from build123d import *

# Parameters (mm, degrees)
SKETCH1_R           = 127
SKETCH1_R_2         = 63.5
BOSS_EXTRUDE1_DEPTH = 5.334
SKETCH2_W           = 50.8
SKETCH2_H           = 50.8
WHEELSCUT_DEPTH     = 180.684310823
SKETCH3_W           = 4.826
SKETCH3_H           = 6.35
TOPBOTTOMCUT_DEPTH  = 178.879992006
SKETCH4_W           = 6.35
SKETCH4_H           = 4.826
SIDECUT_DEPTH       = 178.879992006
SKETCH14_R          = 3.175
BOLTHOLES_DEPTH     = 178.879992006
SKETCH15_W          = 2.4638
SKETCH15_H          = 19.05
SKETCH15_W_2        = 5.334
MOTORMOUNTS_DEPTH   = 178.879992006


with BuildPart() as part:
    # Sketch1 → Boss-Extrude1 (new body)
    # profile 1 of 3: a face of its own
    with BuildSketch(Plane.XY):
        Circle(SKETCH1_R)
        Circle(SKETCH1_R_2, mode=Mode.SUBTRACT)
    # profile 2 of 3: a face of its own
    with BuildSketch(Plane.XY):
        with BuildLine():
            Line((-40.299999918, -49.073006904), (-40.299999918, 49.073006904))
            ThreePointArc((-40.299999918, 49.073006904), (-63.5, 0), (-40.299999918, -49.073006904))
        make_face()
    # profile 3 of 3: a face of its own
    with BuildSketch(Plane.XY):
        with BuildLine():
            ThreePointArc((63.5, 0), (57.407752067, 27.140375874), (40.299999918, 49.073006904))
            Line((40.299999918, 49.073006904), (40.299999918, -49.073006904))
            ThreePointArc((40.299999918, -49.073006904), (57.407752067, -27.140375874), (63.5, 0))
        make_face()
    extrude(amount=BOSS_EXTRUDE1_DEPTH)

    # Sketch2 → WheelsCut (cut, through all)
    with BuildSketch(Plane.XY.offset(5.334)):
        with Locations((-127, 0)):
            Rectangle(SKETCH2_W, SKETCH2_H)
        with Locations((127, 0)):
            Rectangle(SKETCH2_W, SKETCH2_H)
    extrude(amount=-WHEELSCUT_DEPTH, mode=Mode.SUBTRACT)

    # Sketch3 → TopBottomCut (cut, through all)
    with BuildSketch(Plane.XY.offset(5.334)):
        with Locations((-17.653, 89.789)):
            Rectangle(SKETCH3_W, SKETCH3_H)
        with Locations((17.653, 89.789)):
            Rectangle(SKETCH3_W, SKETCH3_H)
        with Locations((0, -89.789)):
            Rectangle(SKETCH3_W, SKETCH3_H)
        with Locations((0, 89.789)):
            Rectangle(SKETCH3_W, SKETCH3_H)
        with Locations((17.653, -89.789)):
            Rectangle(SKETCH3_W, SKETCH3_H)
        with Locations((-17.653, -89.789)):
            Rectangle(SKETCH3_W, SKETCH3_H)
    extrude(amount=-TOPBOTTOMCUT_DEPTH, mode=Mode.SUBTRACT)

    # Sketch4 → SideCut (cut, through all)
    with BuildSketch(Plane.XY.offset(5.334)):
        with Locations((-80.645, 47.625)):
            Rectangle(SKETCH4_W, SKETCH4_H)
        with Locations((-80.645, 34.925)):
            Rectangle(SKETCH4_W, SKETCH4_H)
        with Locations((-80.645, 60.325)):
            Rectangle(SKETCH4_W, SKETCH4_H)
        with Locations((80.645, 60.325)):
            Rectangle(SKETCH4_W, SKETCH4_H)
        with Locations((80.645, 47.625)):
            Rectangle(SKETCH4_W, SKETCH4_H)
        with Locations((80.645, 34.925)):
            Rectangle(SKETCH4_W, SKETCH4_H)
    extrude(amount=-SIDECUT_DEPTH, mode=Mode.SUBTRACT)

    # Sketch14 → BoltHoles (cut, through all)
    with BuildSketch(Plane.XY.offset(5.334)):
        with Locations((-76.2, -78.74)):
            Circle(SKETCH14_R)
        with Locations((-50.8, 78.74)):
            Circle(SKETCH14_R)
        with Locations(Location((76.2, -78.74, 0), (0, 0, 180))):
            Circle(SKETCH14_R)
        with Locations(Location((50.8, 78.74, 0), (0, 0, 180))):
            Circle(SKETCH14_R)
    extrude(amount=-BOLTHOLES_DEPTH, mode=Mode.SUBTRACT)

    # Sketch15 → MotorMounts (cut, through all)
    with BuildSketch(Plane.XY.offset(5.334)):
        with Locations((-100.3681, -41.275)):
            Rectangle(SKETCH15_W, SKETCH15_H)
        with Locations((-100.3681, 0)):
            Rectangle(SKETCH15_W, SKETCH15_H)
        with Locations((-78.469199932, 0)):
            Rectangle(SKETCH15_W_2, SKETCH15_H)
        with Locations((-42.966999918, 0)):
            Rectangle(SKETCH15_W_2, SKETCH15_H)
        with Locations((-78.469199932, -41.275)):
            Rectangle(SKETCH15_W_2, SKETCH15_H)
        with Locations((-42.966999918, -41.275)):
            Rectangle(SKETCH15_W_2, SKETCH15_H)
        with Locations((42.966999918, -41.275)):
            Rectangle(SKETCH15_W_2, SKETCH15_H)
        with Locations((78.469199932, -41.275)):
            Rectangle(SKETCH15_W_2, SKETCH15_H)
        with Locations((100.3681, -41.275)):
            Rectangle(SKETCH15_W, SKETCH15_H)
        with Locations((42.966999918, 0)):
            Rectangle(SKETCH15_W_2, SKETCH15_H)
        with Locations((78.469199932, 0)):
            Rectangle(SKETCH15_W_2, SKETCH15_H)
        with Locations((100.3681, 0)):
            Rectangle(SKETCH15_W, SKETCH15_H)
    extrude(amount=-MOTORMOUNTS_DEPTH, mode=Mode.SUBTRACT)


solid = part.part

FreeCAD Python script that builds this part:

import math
import FreeCAD as App
import Part
import Sketcher

V = App.Vector
Q = App.Units.Quantity


def add_polygon(sketch, points):
    """Adds a closed chain of lines whose ends are joined by coincident constraints."""
    first, n = sketch.GeometryCount, len(points)
    for a, b in zip(points, points[1:] + points[:1]):
        sketch.addGeometry(Part.LineSegment(App.Vector(*a, 0), App.Vector(*b, 0)), False)
    for i in range(n):
        sketch.addConstraint(Sketcher.Constraint("Coincident", first + i, 2, first + (i + 1) % n, 1))

doc = App.newDocument("Part")
body = doc.addObject("PartDesign::Body", "Body")

sketch1 = body.newObject("Sketcher::SketchObject", "Sketch")
sketch1.AttachmentSupport = (doc.getObject("XY_Plane"), [""])
sketch1.MapMode = "FlatFace"
sketch1.addGeometry(Part.Circle(V(0, 0, 0), V(0, 0, 1), 127), False)
sketch1.addGeometry(Part.ArcOfCircle(Part.Circle(V(0, 0, 0), V(0, 0, 1), 64), math.radians(51), math.radians(129)), False)
sketch1.addGeometry(Part.LineSegment(V(40, 49, 0), V(40, -49, 0)), False)
sketch1.addGeometry(Part.ArcOfCircle(Part.Circle(V(0, 0, 0), V(0, 0, 1), 64), math.radians(-129), math.radians(-51)), False)
sketch1.addGeometry(Part.LineSegment(V(-40, -49, 0), V(-40, 49, 0)), False)
sketch1.addConstraint(Sketcher.Constraint("Coincident", 1, 1, 2, 1))
sketch1.addConstraint(Sketcher.Constraint("Coincident", 2, 2, 3, 2))
sketch1.addConstraint(Sketcher.Constraint("Coincident", 3, 1, 4, 1))
sketch1.addConstraint(Sketcher.Constraint("Coincident", 4, 2, 1, 2))
sketch1.addConstraint(Sketcher.Constraint("Vertical", 2))
sketch1.addConstraint(Sketcher.Constraint("Vertical", 4))
sketch1.addConstraint(Sketcher.Constraint("Coincident", 0, 3, -1, 1))
sketch1.addConstraint(Sketcher.Constraint("Coincident", 1, 3, -1, 1))
sketch1.addConstraint(Sketcher.Constraint("Coincident", 3, 3, -1, 1))
sketch1.addConstraint(Sketcher.Constraint("Equal", 1, 3))
sketch1.addConstraint(Sketcher.Constraint("Horizontal", 2, 2, 3, 1))
sketch1.addConstraint(Sketcher.Constraint("Diameter", 0, Q("10 in")))
sketch1.addConstraint(Sketcher.Constraint("Radius", 1, Q("2.5 in")))
sketch1.addConstraint(Sketcher.Constraint("DistanceX", -1, 1, 1, 1, Q("40.3 mm")))
pad1 = body.newObject("PartDesign::Pad", "Pad")
pad1.Profile = sketch1
pad1.Length = Q("0.21 in")

sketch2 = body.newObject("Sketcher::SketchObject", "Sketch001")
sketch2.AttachmentSupport = (doc.getObject("XY_Plane"), [""])
sketch2.MapMode = "FlatFace"
sketch2.AttachmentOffset = App.Placement(V(0, 0, 0.21 * 25.4), App.Rotation())
add_polygon(sketch2, [(-152, 25), (-152, -25), (-102, -25), (-102, 25)])
add_polygon(sketch2, [(102, 25), (102, -25), (152, -25), (152, 25)])
sketch2.addConstraint(Sketcher.Constraint("Vertical", 0))
sketch2.addConstraint(Sketcher.Constraint("Horizontal", 1))
sketch2.addConstraint(Sketcher.Constraint("Vertical", 2))
sketch2.addConstraint(Sketcher.Constraint("Horizontal", 3))
sketch2.addConstraint(Sketcher.Constraint("Vertical", 4))
sketch2.addConstraint(Sketcher.Constraint("Horizontal", 5))
sketch2.addConstraint(Sketcher.Constraint("Vertical", 6))
sketch2.addConstraint(Sketcher.Constraint("Horizontal", 7))
sketch2.addConstraint(Sketcher.Constraint("Symmetric", 2, 2, 4, 2, -1, 1))
sketch2.addConstraint(Sketcher.Constraint("Symmetric", 0, 2, 6, 2, -1, 1))
sketch2.addConstraint(Sketcher.Constraint("Horizontal", 1, 2, 4, 2))
sketch2.addConstraint(Sketcher.Constraint("Equal", 7, 0))
sketch2.addConstraint(Sketcher.Constraint("DistanceX", 1, 1, 1, 2, Q("2 in")))
sketch2.addConstraint(Sketcher.Constraint("DistanceX", 0, 2, -1, 1, Q("6 in")))
pocket1 = body.newObject("PartDesign::Pocket", "Pocket")
pocket1.Profile = sketch2
pocket1.Type = "ThroughAll"

sketch3 = body.newObject("Sketcher::SketchObject", "Sketch002")
sketch3.AttachmentSupport = (doc.getObject("XY_Plane"), [""])
sketch3.MapMode = "FlatFace"
sketch3.AttachmentOffset = App.Placement(V(0, 0, 0.21 * 25.4), App.Rotation())
add_polygon(sketch3, [(-20.1, 93), (-20.1, 86.6), (-15.2, 86.6), (-15.2, 93)])
add_polygon(sketch3, [(15.2, 93), (15.2, 86.6), (20.1, 86.6), (20.1, 93)])
add_polygon(sketch3, [(-2.4, -86.6), (-2.4, -93), (2.4, -93), (2.4, -86.6)])
add_polygon(sketch3, [(-2.4, 93), (-2.4, 86.6), (2.4, 86.6), (2.4, 93)])
add_polygon(sketch3, [(15.2, -86.6), (15.2, -93), (20.1, -93), (20.1, -86.6)])
add_polygon(sketch3, [(-20.1, -86.6), (-20.1, -93), (-15.2, -93), (-15.2, -86.6)])
sketch3.addConstraint(Sketcher.Constraint("Vertical", 0))
sketch3.addConstraint(Sketcher.Constraint("Horizontal", 1))
sketch3.addConstraint(Sketcher.Constraint("Vertical", 2))
sketch3.addConstraint(Sketcher.Constraint("Horizontal", 3))
sketch3.addConstraint(Sketcher.Constraint("Vertical", 4))
sketch3.addConstraint(Sketcher.Constraint("Horizontal", 5))
sketch3.addConstraint(Sketcher.Constraint("Vertical", 6))
sketch3.addConstraint(Sketcher.Constraint("Horizontal", 7))
sketch3.addConstraint(Sketcher.Constraint("Vertical", 8))
sketch3.addConstraint(Sketcher.Constraint("Horizontal", 9))
sketch3.addConstraint(Sketcher.Constraint("Vertical", 10))
sketch3.addConstraint(Sketcher.Constraint("Horizontal", 11))
sketch3.addConstraint(Sketcher.Constraint("Vertical", 12))
sketch3.addConstraint(Sketcher.Constraint("Horizontal", 13))
sketch3.addConstraint(Sketcher.Constraint("Vertical", 14))
sketch3.addConstraint(Sketcher.Constraint("Horizontal", 15))
sketch3.addConstraint(Sketcher.Constraint("Vertical", 16))
sketch3.addConstraint(Sketcher.Constraint("Horizontal", 17))
sketch3.addConstraint(Sketcher.Constraint("Vertical", 18))
sketch3.addConstraint(Sketcher.Constraint("Horizontal", 19))
sketch3.addConstraint(Sketcher.Constraint("Vertical", 20))
sketch3.addConstraint(Sketcher.Constraint("Horizontal", 21))
sketch3.addConstraint(Sketcher.Constraint("Vertical", 22))
sketch3.addConstraint(Sketcher.Constraint("Horizontal", 23))
sketch3.addConstraint(Sketcher.Constraint("Symmetric", 10, 2, 12, 2, -1, 1))
sketch3.addConstraint(Sketcher.Constraint("Symmetric", 8, 2, 14, 2, -1, 1))
sketch3.addConstraint(Sketcher.Constraint("Symmetric", 2, 2, 16, 2, -1, 1))
sketch3.addConstraint(Sketcher.Constraint("Symmetric", 0, 2, 18, 2, -1, 1))
sketch3.addConstraint(Sketcher.Constraint("Symmetric", 6, 2, 20, 2, -1, 1))
sketch3.addConstraint(Sketcher.Constraint("Symmetric", 4, 2, 22, 2, -1, 1))
sketch3.addConstraint(Sketcher.Constraint("Symmetric", 1, 2, 4, 2, -2))
sketch3.addConstraint(Sketcher.Constraint("Symmetric", 3, 2, 6, 2, -2))
sketch3.addConstraint(Sketcher.Constraint("Horizontal", 5, 2, 12, 2))
sketch3.addConstraint(Sketcher.Constraint("Horizontal", 7, 2, 14, 2))
sketch3.addConstraint(Sketcher.Constraint("Vertical", 11, 2, 12, 2))
sketch3.addConstraint(Sketcher.Constraint("Equal", 7, 9))
sketch3.addConstraint(Sketcher.Constraint("DistanceX", 1, 1, 1, 2, Q("0.19 in")))
sketch3.addConstraint(Sketcher.Constraint("DistanceY", 0, 2, 0, 1, Q("0.25 in")))
sketch3.addConstraint(Sketcher.Constraint("DistanceX", 1, 2, -1, 1, Q("0.6 in")))
sketch3.addConstraint(Sketcher.Constraint("DistanceY", -1, 1, 0, 2, Q("3.41 in")))
pocket2 = body.newObject("PartDesign::Pocket", "Pocket001")
pocket2.Profile = sketch3
pocket2.Type = "ThroughAll"

sketch4 = body.newObject("Sketcher::SketchObject", "Sketch003")
sketch4.AttachmentSupport = (doc.getObject("XY_Plane"), [""])
sketch4.MapMode = "FlatFace"
sketch4.AttachmentOffset = App.Placement(V(0, 0, 0.21 * 25.4), App.Rotation())
add_polygon(sketch4, [(-83.8, 50), (-83.8, 45.2), (-77.5, 45.2), (-77.5, 50)])
add_polygon(sketch4, [(-83.8, 37.3), (-83.8, 32.5), (-77.5, 32.5), (-77.5, 37.3)])
add_polygon(sketch4, [(-83.8, 62.7), (-83.8, 57.9), (-77.5, 57.9), (-77.5, 62.7)])
add_polygon(sketch4, [(77.5, 62.7), (77.5, 57.9), (83.8, 57.9), (83.8, 62.7)])
add_polygon(sketch4, [(77.5, 50), (77.5, 45.2), (83.8, 45.2), (83.8, 50)])
add_polygon(sketch4, [(77.5, 37.3), (77.5, 32.5), (83.8, 32.5), (83.8, 37.3)])
sketch4.addConstraint(Sketcher.Constraint("Vertical", 0))
sketch4.addConstraint(Sketcher.Constraint("Horizontal", 1))
sketch4.addConstraint(Sketcher.Constraint("Vertical", 2))
sketch4.addConstraint(Sketcher.Constraint("Horizontal", 3))
sketch4.addConstraint(Sketcher.Constraint("Vertical", 4))
sketch4.addConstraint(Sketcher.Constraint("Horizontal", 5))
sketch4.addConstraint(Sketcher.Constraint("Vertical", 6))
sketch4.addConstraint(Sketcher.Constraint("Horizontal", 7))
sketch4.addConstraint(Sketcher.Constraint("Vertical", 8))
sketch4.addConstraint(Sketcher.Constraint("Horizontal", 9))
sketch4.addConstraint(Sketcher.Constraint("Vertical", 10))
sketch4.addConstraint(Sketcher.Constraint("Horizontal", 11))
sketch4.addConstraint(Sketcher.Constraint("Vertical", 12))
sketch4.addConstraint(Sketcher.Constraint("Horizontal", 13))
sketch4.addConstraint(Sketcher.Constraint("Vertical", 14))
sketch4.addConstraint(Sketcher.Constraint("Horizontal", 15))
sketch4.addConstraint(Sketcher.Constraint("Vertical", 16))
sketch4.addConstraint(Sketcher.Constraint("Horizontal", 17))
sketch4.addConstraint(Sketcher.Constraint("Vertical", 18))
sketch4.addConstraint(Sketcher.Constraint("Horizontal", 19))
sketch4.addConstraint(Sketcher.Constraint("Vertical", 20))
sketch4.addConstraint(Sketcher.Constraint("Horizontal", 21))
sketch4.addConstraint(Sketcher.Constraint("Vertical", 22))
sketch4.addConstraint(Sketcher.Constraint("Horizontal", 23))
sketch4.addConstraint(Sketcher.Constraint("Symmetric", 9, 2, 12, 2, -2))
sketch4.addConstraint(Sketcher.Constraint("Symmetric", 11, 2, 14, 2, -2))
sketch4.addConstraint(Sketcher.Constraint("Symmetric", 1, 2, 16, 2, -2))
sketch4.addConstraint(Sketcher.Constraint("Symmetric", 3, 2, 18, 2, -2))
sketch4.addConstraint(Sketcher.Constraint("Symmetric", 5, 2, 20, 2, -2))
sketch4.addConstraint(Sketcher.Constraint("Symmetric", 7, 2, 22, 2, -2))
sketch4.addConstraint(Sketcher.Constraint("Vertical", 3, 2, 4, 2))
sketch4.addConstraint(Sketcher.Constraint("Vertical", 2, 2, 5, 2))
sketch4.addConstraint(Sketcher.Constraint("Vertical", 7, 2, 8, 2))
sketch4.addConstraint(Sketcher.Constraint("Vertical", 6, 2, 9, 2))
sketch4.addConstraint(Sketcher.Constraint("Equal", 2, 4))
sketch4.addConstraint(Sketcher.Constraint("Equal", 6, 8))
sketch4.addConstraint(Sketcher.Constraint("DistanceY", 20, 2, 12, 2, Q("1 in")))
sketch4.addConstraint(Sketcher.Constraint("DistanceX", 1, 1, 1, 2, Q("0.25 in")))
sketch4.addConstraint(Sketcher.Constraint("DistanceY", 0, 2, 0, 1, Q("0.19 in")))
sketch4.addConstraint(Sketcher.Constraint("DistanceX", 0, 2, -1, 1, Q("3.3 in")))
sketch4.addConstraint(Sketcher.Constraint("DistanceY", 4, 2, 0, 2, Q("0.5 in")))
sketch4.addConstraint(Sketcher.Constraint("DistanceY", -1, 1, 0, 2, Q("1.78 in")))
pocket3 = body.newObject("PartDesign::Pocket", "Pocket002")
pocket3.Profile = sketch4
pocket3.Type = "ThroughAll"

sketch5 = body.newObject("Sketcher::SketchObject", "Sketch004")
sketch5.AttachmentSupport = (doc.getObject("XY_Plane"), [""])
sketch5.MapMode = "FlatFace"
sketch5.AttachmentOffset = App.Placement(V(0, 0, 0.21 * 25.4), App.Rotation())
sketch5.addGeometry(Part.Circle(V(-76.2, -78.7, 0), V(0, 0, 1), 3.2), False)
sketch5.addGeometry(Part.Circle(V(-50.8, 78.7, 0), V(0, 0, 1), 3.2), False)
sketch5.addGeometry(Part.Circle(V(76.2, -78.7, 0), V(0, 0, 1), 3.2), False)
sketch5.addGeometry(Part.Circle(V(50.8, 78.7, 0), V(0, 0, 1), 3.2), False)
sketch5.addConstraint(Sketcher.Constraint("Equal", 0, 1))
sketch5.addConstraint(Sketcher.Constraint("Equal", 1, 2))
sketch5.addConstraint(Sketcher.Constraint("Equal", 2, 3))
sketch5.addConstraint(Sketcher.Constraint("Symmetric", 0, 3, 2, 3, -2))
sketch5.addConstraint(Sketcher.Constraint("Symmetric", 1, 3, 3, 3, -2))
sketch5.addConstraint(Sketcher.Constraint("Diameter", 0, Q("0.25 in")))
sketch5.addConstraint(Sketcher.Constraint("DistanceX", 0, 3, -1, 1, Q("3 in")))
sketch5.addConstraint(Sketcher.Constraint("DistanceX", 1, 3, -1, 1, Q("2 in")))
sketch5.addConstraint(Sketcher.Constraint("DistanceY", 0, 3, -1, 1, Q("3.1 in")))
sketch5.addConstraint(Sketcher.Constraint("DistanceY", -1, 1, 1, 3, Q("3.1 in")))
pocket4 = body.newObject("PartDesign::Pocket", "Pocket003")
pocket4.Profile = sketch5
pocket4.Type = "ThroughAll"

sketch6 = body.newObject("Sketcher::SketchObject", "Sketch005")
sketch6.AttachmentSupport = (doc.getObject("XY_Plane"), [""])
sketch6.MapMode = "FlatFace"
sketch6.AttachmentOffset = App.Placement(V(0, 0, 0.21 * 25.4), App.Rotation())
add_polygon(sketch6, [(-101.6, -31.8), (-101.6, -50.8), (-99.1, -50.8), (-99.1, -31.8)])
add_polygon(sketch6, [(-101.6, 9.5), (-101.6, -9.5), (-99.1, -9.5), (-99.1, 9.5)])
add_polygon(sketch6, [(-81.1, 9.5), (-81.1, -9.5), (-75.8, -9.5), (-75.8, 9.5)])
add_polygon(sketch6, [(-45.6, 9.5), (-45.6, -9.5), (-40.3, -9.5), (-40.3, 9.5)])
add_polygon(sketch6, [(-81.1, -31.8), (-81.1, -50.8), (-75.8, -50.8), (-75.8, -31.8)])
add_polygon(sketch6, [(-45.6, -31.8), (-45.6, -50.8), (-40.3, -50.8), (-40.3, -31.8)])
add_polygon(sketch6, [(40.3, -31.8), (40.3, -50.8), (45.6, -50.8), (45.6, -31.8)])
add_polygon(sketch6, [(75.8, -31.8), (75.8, -50.8), (81.1, -50.8), (81.1, -31.8)])
add_polygon(sketch6, [(99.1, -31.8), (99.1, -50.8), (101.6, -50.8), (101.6, -31.8)])
add_polygon(sketch6, [(40.3, 9.5), (40.3, -9.5), (45.6, -9.5), (45.6, 9.5)])
add_polygon(sketch6, [(75.8, 9.5), (75.8, -9.5), (81.1, -9.5), (81.1, 9.5)])
add_polygon(sketch6, [(99.1, 9.5), (99.1, -9.5), (101.6, -9.5), (101.6, 9.5)])
sketch6.addConstraint(Sketcher.Constraint("Vertical", 0))
sketch6.addConstraint(Sketcher.Constraint("Horizontal", 1))
sketch6.addConstraint(Sketcher.Constraint("Vertical", 2))
sketch6.addConstraint(Sketcher.Constraint("Horizontal", 3))
sketch6.addConstraint(Sketcher.Constraint("Vertical", 4))
sketch6.addConstraint(Sketcher.Constraint("Horizontal", 5))
sketch6.addConstraint(Sketcher.Constraint("Vertical", 6))
sketch6.addConstraint(Sketcher.Constraint("Horizontal", 7))
sketch6.addConstraint(Sketcher.Constraint("Vertical", 8))
sketch6.addConstraint(Sketcher.Constraint("Horizontal", 9))
sketch6.addConstraint(Sketcher.Constraint("Vertical", 10))
sketch6.addConstraint(Sketcher.Constraint("Horizontal", 11))
sketch6.addConstraint(Sketcher.Constraint("Vertical", 12))
sketch6.addConstraint(Sketcher.Constraint("Horizontal", 13))
sketch6.addConstraint(Sketcher.Constraint("Vertical", 14))
sketch6.addConstraint(Sketcher.Constraint("Horizontal", 15))
sketch6.addConstraint(Sketcher.Constraint("Vertical", 16))
sketch6.addConstraint(Sketcher.Constraint("Horizontal", 17))
sketch6.addConstraint(Sketcher.Constraint("Vertical", 18))
sketch6.addConstraint(Sketcher.Constraint("Horizontal", 19))
sketch6.addConstraint(Sketcher.Constraint("Vertical", 20))
sketch6.addConstraint(Sketcher.Constraint("Horizontal", 21))
sketch6.addConstraint(Sketcher.Constraint("Vertical", 22))
sketch6.addConstraint(Sketcher.Constraint("Horizontal", 23))
sketch6.addConstraint(Sketcher.Constraint("Vertical", 24))
sketch6.addConstraint(Sketcher.Constraint("Horizontal", 25))
sketch6.addConstraint(Sketcher.Constraint("Vertical", 26))
sketch6.addConstraint(Sketcher.Constraint("Horizontal", 27))
sketch6.addConstraint(Sketcher.Constraint("Vertical", 28))
sketch6.addConstraint(Sketcher.Constraint("Horizontal", 29))
sketch6.addConstraint(Sketcher.Constraint("Vertical", 30))
sketch6.addConstraint(Sketcher.Constraint("Horizontal", 31))
sketch6.addConstraint(Sketcher.Constraint("Vertical", 32))
sketch6.addConstraint(Sketcher.Constraint("Horizontal", 33))
sketch6.addConstraint(Sketcher.Constraint("Vertical", 34))
sketch6.addConstraint(Sketcher.Constraint("Horizontal", 35))
sketch6.addConstraint(Sketcher.Constraint("Vertical", 36))
sketch6.addConstraint(Sketcher.Constraint("Horizontal", 37))
sketch6.addConstraint(Sketcher.Constraint("Vertical", 38))
sketch6.addConstraint(Sketcher.Constraint("Horizontal", 39))
sketch6.addConstraint(Sketcher.Constraint("Vertical", 40))
sketch6.addConstraint(Sketcher.Constraint("Horizontal", 41))
sketch6.addConstraint(Sketcher.Constraint("Vertical", 42))
sketch6.addConstraint(Sketcher.Constraint("Horizontal", 43))
sketch6.addConstraint(Sketcher.Constraint("Vertical", 44))
sketch6.addConstraint(Sketcher.Constraint("Horizontal", 45))
sketch6.addConstraint(Sketcher.Constraint("Vertical", 46))
sketch6.addConstraint(Sketcher.Constraint("Horizontal", 47))
sketch6.addConstraint(Sketcher.Constraint("Symmetric", 14, 2, 36, 2, -1, 1))
sketch6.addConstraint(Sketcher.Constraint("Symmetric", 12, 2, 38, 2, -1, 1))
sketch6.addConstraint(Sketcher.Constraint("Symmetric", 10, 2, 40, 2, -1, 1))
sketch6.addConstraint(Sketcher.Constraint("Symmetric", 8, 2, 42, 2, -1, 1))
sketch6.addConstraint(Sketcher.Constraint("Symmetric", 6, 2, 44, 2, -1, 1))
sketch6.addConstraint(Sketcher.Constraint("Symmetric", 4, 2, 46, 2, -1, 1))
sketch6.addConstraint(Sketcher.Constraint("Symmetric", 21, 2, 24, 2, -2))
sketch6.addConstraint(Sketcher.Constraint("Symmetric", 23, 2, 26, 2, -2))
sketch6.addConstraint(Sketcher.Constraint("Symmetric", 17, 2, 28, 2, -2))
sketch6.addConstraint(Sketcher.Constraint("Symmetric", 19, 2, 30, 2, -2))
sketch6.addConstraint(Sketcher.Constraint("Symmetric", 1, 2, 32, 2, -2))
sketch6.addConstraint(Sketcher.Constraint("Symmetric", 3, 2, 34, 2, -2))
sketch6.addConstraint(Sketcher.Constraint("Horizontal", 5, 2, 8, 2))
sketch6.addConstraint(Sketcher.Constraint("Horizontal", 7, 2, 10, 2))
sketch6.addConstraint(Sketcher.Constraint("Horizontal", 9, 2, 12, 2))
sketch6.addConstraint(Sketcher.Constraint("Horizontal", 11, 2, 14, 2))
sketch6.addConstraint(Sketcher.Constraint("Horizontal", 1, 2, 16, 2))
sketch6.addConstraint(Sketcher.Constraint("Horizontal", 3, 2, 18, 2))
sketch6.addConstraint(Sketcher.Constraint("Horizontal", 17, 2, 20, 2))
sketch6.addConstraint(Sketcher.Constraint("Horizontal", 19, 2, 22, 2))
sketch6.addConstraint(Sketcher.Constraint("Horizontal", 13, 2, 36, 2))
sketch6.addConstraint(Sketcher.Constraint("Vertical", 3, 2, 4, 2))
sketch6.addConstraint(Sketcher.Constraint("Vertical", 2, 2, 5, 2))
sketch6.addConstraint(Sketcher.Constraint("Vertical", 11, 2, 16, 2))
sketch6.addConstraint(Sketcher.Constraint("Vertical", 10, 2, 17, 2))
sketch6.addConstraint(Sketcher.Constraint("Vertical", 15, 2, 20, 2))
sketch6.addConstraint(Sketcher.Constraint("Vertical", 14, 2, 21, 2))
sketch6.addConstraint(Sketcher.Constraint("Equal", 11, 13))
sketch6.addConstraint(Sketcher.Constraint("Equal", 2, 4))
sketch6.addConstraint(Sketcher.Constraint("DistanceX", 0, 2, -1, 1, Q("4 in")))
sketch6.addConstraint(Sketcher.Constraint("DistanceY", 0, 2, -1, 1, Q("2 in")))
sketch6.addConstraint(Sketcher.Constraint("DistanceX", 9, 1, 9, 2, Q("0.21 in")))
sketch6.addConstraint(Sketcher.Constraint("DistanceY", 0, 2, 0, 1, Q("0.75 in")))
sketch6.addConstraint(Sketcher.Constraint("DistanceX", 1, 1, 1, 2, Q("0.097 in")))
sketch6.addConstraint(Sketcher.Constraint("DistanceX", 8, 2, -1, 1, Q("81.1362 mm")))
sketch6.addConstraint(Sketcher.Constraint("DistanceX", 12, 2, -1, 1, Q("45.634 mm")))
pocket5 = body.newObject("PartDesign::Pocket", "Pocket004")
pocket5.Profile = sketch6
pocket5.Type = "ThroughAll"

doc.recompute()
